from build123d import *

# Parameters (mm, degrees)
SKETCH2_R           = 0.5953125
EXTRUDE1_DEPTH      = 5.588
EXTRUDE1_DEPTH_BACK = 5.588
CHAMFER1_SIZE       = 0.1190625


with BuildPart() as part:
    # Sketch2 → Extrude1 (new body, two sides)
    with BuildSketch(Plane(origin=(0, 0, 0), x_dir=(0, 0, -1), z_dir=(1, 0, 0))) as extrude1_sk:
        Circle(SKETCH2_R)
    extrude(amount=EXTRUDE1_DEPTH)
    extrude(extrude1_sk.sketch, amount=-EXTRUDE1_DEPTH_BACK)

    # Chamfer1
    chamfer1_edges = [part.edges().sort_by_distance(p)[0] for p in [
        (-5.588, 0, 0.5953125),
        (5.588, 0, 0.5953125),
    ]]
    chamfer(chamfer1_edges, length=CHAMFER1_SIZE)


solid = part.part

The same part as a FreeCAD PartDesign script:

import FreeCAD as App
import Part
import Sketcher

V = App.Vector
Q = App.Units.Quantity


def edges_at(feature, points):
    """Names of the edges that pass closest to the given points."""
    edges = feature.Shape.Edges
    near = lambda p: min(range(len(edges)), key=lambda i: edges[i].distToShape(Part.Vertex(*p))[0])
    return sorted({f"Edge{near(p) + 1}" for p in points})

doc = App.newDocument("Part")
body = doc.addObject("PartDesign::Body", "Body")

# Sketch on YZ plane
sketch1 = body.newObject("Sketcher::SketchObject", "Sketch")
sketch1.AttachmentSupport = (doc.getObject("YZ_Plane"), [""])
sketch1.MapMode = "FlatFace"
sketch1.addGeometry(Part.Circle(V(0, 0, 0), V(0, 0, 1), 0.595313), False)
sketch1.addConstraint(Sketcher.Constraint("Coincident", 0, 3, -1, 1))
sketch1.addConstraint(Sketcher.Constraint("Diameter", 0, Q("0.046875 in")))
pad1 = body.newObject("PartDesign::Pad", "Pad")
pad1.Profile = sketch1
pad1.Type = "TwoLengths"
pad1.Length = Q("0.22 in")
pad1.Length2 = Q("0.22 in")
doc.recompute()

chamfer = body.newObject("PartDesign::Chamfer", "Chamfer")
chamfer.Base = (pad1, edges_at(pad1, [(-5.588, 0, 0.595), (5.588, 0, 0.595)]))
chamfer.Size = 0.119063

doc.recompute()
